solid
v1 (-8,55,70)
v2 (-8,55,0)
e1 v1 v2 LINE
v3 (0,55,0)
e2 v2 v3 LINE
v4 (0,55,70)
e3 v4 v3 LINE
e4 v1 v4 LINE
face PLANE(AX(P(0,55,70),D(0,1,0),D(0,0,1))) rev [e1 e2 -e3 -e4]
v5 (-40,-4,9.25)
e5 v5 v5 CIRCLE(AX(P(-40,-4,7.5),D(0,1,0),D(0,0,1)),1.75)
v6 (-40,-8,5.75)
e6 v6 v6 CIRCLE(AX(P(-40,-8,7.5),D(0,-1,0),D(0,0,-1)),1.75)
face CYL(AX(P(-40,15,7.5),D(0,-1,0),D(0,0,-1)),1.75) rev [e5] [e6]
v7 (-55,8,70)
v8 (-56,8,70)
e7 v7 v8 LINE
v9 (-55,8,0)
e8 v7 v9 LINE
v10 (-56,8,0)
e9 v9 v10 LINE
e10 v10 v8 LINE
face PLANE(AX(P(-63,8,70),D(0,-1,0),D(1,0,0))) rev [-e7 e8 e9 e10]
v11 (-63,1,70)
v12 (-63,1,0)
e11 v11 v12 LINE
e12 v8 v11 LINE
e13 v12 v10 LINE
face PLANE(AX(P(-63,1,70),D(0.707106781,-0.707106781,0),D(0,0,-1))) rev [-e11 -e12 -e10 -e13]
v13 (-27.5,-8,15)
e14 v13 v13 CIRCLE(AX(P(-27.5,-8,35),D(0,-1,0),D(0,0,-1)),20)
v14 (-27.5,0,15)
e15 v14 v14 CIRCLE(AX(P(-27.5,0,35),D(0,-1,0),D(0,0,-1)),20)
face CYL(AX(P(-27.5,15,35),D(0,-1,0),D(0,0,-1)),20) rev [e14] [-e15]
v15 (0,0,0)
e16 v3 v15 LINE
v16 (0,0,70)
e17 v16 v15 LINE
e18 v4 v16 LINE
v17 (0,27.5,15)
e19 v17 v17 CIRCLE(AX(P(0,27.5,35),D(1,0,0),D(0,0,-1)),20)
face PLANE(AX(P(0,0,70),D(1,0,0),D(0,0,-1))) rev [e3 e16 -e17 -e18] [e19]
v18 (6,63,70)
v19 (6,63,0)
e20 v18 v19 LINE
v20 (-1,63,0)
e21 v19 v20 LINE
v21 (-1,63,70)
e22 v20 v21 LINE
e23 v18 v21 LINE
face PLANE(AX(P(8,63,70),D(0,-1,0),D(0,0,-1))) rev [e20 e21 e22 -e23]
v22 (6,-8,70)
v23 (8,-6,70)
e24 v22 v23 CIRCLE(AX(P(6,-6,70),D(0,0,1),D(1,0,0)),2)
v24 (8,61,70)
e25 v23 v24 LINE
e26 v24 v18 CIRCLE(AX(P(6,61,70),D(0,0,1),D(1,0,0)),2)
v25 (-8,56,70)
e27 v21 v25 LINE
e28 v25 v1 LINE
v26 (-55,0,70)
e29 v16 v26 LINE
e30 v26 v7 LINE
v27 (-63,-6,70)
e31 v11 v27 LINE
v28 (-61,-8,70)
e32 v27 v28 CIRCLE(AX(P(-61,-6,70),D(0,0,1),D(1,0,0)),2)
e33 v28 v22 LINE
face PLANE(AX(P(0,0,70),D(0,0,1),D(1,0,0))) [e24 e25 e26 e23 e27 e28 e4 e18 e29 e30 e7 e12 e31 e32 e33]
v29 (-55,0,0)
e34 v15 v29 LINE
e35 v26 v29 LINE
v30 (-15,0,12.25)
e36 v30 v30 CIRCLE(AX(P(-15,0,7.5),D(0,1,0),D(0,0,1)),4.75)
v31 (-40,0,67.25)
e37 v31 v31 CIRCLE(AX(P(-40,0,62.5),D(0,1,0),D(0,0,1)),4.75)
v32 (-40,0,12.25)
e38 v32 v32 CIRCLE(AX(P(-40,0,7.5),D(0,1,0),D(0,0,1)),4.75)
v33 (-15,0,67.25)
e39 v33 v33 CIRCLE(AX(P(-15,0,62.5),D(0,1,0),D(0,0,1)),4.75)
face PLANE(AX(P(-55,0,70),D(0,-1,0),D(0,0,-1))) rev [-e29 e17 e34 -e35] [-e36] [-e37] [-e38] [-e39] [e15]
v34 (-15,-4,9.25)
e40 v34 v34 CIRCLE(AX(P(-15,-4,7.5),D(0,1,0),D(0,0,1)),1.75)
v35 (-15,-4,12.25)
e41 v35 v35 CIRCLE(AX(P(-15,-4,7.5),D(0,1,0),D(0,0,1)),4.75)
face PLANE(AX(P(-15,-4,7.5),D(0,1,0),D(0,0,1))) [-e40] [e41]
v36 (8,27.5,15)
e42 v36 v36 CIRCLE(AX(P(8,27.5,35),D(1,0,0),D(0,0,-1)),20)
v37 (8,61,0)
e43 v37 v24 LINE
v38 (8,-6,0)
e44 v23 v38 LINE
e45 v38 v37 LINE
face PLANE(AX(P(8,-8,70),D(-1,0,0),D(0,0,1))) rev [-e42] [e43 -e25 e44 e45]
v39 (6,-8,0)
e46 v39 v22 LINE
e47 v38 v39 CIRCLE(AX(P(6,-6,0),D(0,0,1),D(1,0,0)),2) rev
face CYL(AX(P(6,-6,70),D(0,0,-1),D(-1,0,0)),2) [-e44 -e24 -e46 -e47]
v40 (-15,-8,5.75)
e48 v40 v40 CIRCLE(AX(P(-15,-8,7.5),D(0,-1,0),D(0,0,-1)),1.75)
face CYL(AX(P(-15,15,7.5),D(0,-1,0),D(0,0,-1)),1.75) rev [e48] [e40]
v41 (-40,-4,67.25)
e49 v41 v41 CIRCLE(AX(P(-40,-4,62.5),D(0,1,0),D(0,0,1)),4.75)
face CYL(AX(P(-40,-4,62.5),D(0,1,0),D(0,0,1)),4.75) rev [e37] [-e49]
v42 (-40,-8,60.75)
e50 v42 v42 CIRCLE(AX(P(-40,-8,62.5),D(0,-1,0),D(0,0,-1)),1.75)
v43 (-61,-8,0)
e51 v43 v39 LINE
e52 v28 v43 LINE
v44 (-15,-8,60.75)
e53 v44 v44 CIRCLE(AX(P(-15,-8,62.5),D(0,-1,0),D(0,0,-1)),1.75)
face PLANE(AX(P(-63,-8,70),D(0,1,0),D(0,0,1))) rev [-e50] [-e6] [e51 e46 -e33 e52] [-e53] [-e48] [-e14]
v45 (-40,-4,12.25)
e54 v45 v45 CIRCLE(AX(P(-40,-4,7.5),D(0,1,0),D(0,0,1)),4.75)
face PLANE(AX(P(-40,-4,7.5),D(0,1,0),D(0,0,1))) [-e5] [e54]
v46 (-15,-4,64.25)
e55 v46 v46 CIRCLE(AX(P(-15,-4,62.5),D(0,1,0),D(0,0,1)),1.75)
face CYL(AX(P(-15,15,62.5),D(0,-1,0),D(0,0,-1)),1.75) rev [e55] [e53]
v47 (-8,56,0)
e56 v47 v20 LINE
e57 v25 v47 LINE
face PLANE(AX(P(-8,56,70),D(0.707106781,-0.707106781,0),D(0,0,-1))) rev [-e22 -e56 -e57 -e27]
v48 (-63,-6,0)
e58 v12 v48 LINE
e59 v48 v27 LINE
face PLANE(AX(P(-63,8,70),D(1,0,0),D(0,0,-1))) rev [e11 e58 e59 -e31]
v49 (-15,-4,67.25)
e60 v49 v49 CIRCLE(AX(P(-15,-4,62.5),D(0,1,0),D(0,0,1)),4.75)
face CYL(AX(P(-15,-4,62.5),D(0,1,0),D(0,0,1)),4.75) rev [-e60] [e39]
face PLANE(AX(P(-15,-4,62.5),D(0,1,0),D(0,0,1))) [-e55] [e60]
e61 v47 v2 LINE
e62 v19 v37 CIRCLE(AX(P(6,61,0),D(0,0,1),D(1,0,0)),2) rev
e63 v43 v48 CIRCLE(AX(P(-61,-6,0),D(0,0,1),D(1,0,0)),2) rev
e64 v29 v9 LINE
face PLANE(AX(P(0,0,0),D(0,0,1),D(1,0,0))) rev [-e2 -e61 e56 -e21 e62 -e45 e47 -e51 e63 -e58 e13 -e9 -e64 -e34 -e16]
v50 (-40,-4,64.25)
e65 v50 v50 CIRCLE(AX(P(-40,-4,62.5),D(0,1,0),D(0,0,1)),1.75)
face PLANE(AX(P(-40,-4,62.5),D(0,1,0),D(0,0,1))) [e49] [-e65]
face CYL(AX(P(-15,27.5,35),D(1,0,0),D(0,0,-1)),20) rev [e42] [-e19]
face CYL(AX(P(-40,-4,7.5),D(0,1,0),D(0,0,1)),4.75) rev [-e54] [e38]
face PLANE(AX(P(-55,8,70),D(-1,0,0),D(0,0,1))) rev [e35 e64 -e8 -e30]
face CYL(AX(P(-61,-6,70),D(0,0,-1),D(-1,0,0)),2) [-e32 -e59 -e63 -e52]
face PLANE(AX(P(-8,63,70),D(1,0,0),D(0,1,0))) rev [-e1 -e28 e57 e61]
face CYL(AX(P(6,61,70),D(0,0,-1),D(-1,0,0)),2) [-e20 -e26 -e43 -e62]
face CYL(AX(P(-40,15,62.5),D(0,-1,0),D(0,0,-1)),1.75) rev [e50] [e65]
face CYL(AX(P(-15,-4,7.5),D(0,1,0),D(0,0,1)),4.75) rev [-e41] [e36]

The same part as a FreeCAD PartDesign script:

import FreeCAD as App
import Part
import Sketcher

V = App.Vector
Q = App.Units.Quantity


def edges_at(feature, points):
    """Names of the edges that pass closest to the given points."""
    edges = feature.Shape.Edges
    near = lambda p: min(range(len(edges)), key=lambda i: edges[i].distToShape(Part.Vertex(*p))[0])
    return sorted({f"Edge{near(p) + 1}" for p in points})


def add_polygon(sketch, points):
    """Adds a closed chain of lines whose ends are joined by coincident constraints."""
    first, n = sketch.GeometryCount, len(points)
    for a, b in zip(points, points[1:] + points[:1]):
        sketch.addGeometry(Part.LineSegment(App.Vector(*a, 0), App.Vector(*b, 0)), False)
    for i in range(n):
        sketch.addConstraint(Sketcher.Constraint("Coincident", first + i, 2, first + (i + 1) % n, 1))

doc = App.newDocument("Part")
params = doc.addObject("Spreadsheet::Sheet", "Params")
for row, (alias, value) in enumerate([
    ("sketch1_width", "55 mm"),
    ("sketch1_width2", "8 mm"),
    ("sketch1_width3", "71 mm"),
    ("pad1_length", "70 mm"),
    ("chamfer_size", "7 mm"),
    ("fillet_radius", "2 mm"),
    ("sketch2_diameter", "40 mm"),
    ("sketch2_diameter2", "3.5 mm"),
    ("pocket1_length", "23 mm"),
    ("sketch3_diameter", "9.5 mm"),
    ("sketch3_diameter2", "3.5 mm"),
    ("pocket2_length", "4 mm"),
    ("sketch4_diameter", "40 mm"),
    ("pocket3_length", "23 mm"),
], start=1):
    params.set(f"A{row}", alias)
    params.set(f"B{row}", "=" + value)
    params.setAlias(f"B{row}", alias)

body = doc.addObject("PartDesign::Body", "Body")

sketch1 = doc.addObject("Sketcher::SketchObject", "Sketch")
body.addObject(sketch1)
sketch1.AttachmentSupport = (doc.XY_Plane, [""])
sketch1.MapMode = "FlatFace"
add_polygon(sketch1, [(0, 0), (-55, 0), (-55, 8), (-63, 8), (-63, -8), (8, -8), (8, 63), (-8, 63), (-8, 55), (0, 55)])
sketch1.addConstraint([
    Sketcher.Constraint("Horizontal", 0),
    Sketcher.Constraint("Vertical", 1),
    Sketcher.Constraint("Horizontal", 2),
    Sketcher.Constraint("Vertical", 3),
    Sketcher.Constraint("Horizontal", 4),
    Sketcher.Constraint("Vertical", 5),
    Sketcher.Constraint("Horizontal", 6),
    Sketcher.Constraint("Vertical", 7),
    Sketcher.Constraint("Horizontal", 8),
    Sketcher.Constraint("Vertical", 9),
    Sketcher.Constraint("Coincident", 9, 2, -1, 1),
    Sketcher.Constraint("Equal", 2, 8),
    Sketcher.Constraint("Equal", 8, 1),
    Sketcher.Constraint("Equal", 6, 3),
    Sketcher.Constraint("Equal", 4, 5),
    Sketcher.Constraint("Equal", 1, 7),
    Sketcher.Constraint("DistanceX", 0, 2, 0, 1, Q("55 mm")),
    Sketcher.Constraint("DistanceX", 2, 2, 2, 1, Q("8 mm")),
    Sketcher.Constraint("DistanceX", 4, 1, 4, 2, Q("71 mm")),
])
sketch1.setExpression("Constraints[26]", "Params.sketch1_width")
sketch1.setExpression("Constraints[27]", "Params.sketch1_width2")
sketch1.setExpression("Constraints[28]", "Params.sketch1_width3")
pad1 = doc.addObject("PartDesign::Pad", "Pad")
body.addObject(pad1)
pad1.Profile = sketch1
pad1.setExpression("Length", "Params.pad1_length")
doc.recompute()

chamfer = doc.addObject("PartDesign::Chamfer", "Chamfer")
body.addObject(chamfer)
chamfer.Base = (pad1, edges_at(pad1, [(-8, 63, 35), (-63, 8, 35)]))
chamfer.setExpression("Size", "Params.chamfer_size")
doc.recompute()

fillet = doc.addObject("PartDesign::Fillet", "Fillet")
body.addObject(fillet)
fillet.Base = (chamfer, edges_at(chamfer, [(8, 63, 35), (8, -8, 35), (-63, -8, 35)]))
fillet.setExpression("Radius", "Params.fillet_radius")

sketch2 = doc.addObject("Sketcher::SketchObject", "Sketch001")
body.addObject(sketch2)
sketch2.AttachmentSupport = (doc.XZ_Plane, [""])
sketch2.MapMode = "FlatFace"
sketch2.AttachmentOffset = App.Placement(V(0, 0, 8), App.Rotation())
sketch2.addGeometry([
    Part.Circle(V(-40, 62.5, 0), V(0, 0, 1), 1.8),
    Part.Circle(V(-15, 62.5, 0), V(0, 0, 1), 1.8),
    Part.Circle(V(-15, 7.5, 0), V(0, 0, 1), 1.8),
    Part.Circle(V(-40, 7.5, 0), V(0, 0, 1), 1.8),
    Part.Circle(V(-27.5, 35, 0), V(0, 0, 1), 20),
], False)
sketch2.addConstraint([
    Sketcher.Constraint("Equal", 0, 1),
    Sketcher.Constraint("Equal", 1, 2),
    Sketcher.Constraint("Equal", 2, 3),
    Sketcher.Constraint("Horizontal", 0, 3, 1, 3),
    Sketcher.Constraint("Horizontal", 2, 3, 3, 3),
    Sketcher.Constraint("Vertical", 1, 3, 2, 3),
    Sketcher.Constraint("Vertical", 0, 3, 3, 3),
    Sketcher.Constraint("Diameter", 4, Q("40 mm")),
    Sketcher.Constraint("Diameter", 0, Q("3.5 mm")),
    Sketcher.Constraint("DistanceX", 0, 3, -1, 1, Q("40 mm")),
    Sketcher.Constraint("DistanceX", 1, 3, -1, 1, Q("15 mm")),
    Sketcher.Constraint("DistanceY", -1, 1, 4, 3, Q("35 mm")),
    Sketcher.Constraint("DistanceY", 2, 3, 1, 3, Q("55 mm")),
    Sketcher.Constraint("DistanceY", -1, 1, 0, 3, Q("62.5 mm")),
    Sketcher.Constraint("DistanceX", 4, 3, -1, 1, Q("27.5 mm")),
])
sketch2.setExpression("Constraints[7]", "Params.sketch2_diameter")
sketch2.setExpression("Constraints[8]", "Params.sketch2_diameter2")
pocket1 = doc.addObject("PartDesign::Pocket", "Pocket")
body.addObject(pocket1)
pocket1.Profile = sketch2
pocket1.setExpression("Length", "Params.pocket1_length")

sketch3 = doc.addObject("Sketcher::SketchObject", "Sketch002")
body.addObject(sketch3)
sketch3.AttachmentSupport = (doc.XZ_Plane, [""])
sketch3.MapMode = "FlatFace"
sketch3.AttachmentOffset = App.Placement(V(0, 0, 4), App.Rotation())
sketch3.addGeometry([
    Part.Circle(V(-40, 62.5, 0), V(0, 0, 1), 4.8),
    Part.Circle(V(-40, 62.5, 0), V(0, 0, 1), 1.8),
    Part.Circle(V(-15, 62.5, 0), V(0, 0, 1), 4.8),
    Part.Circle(V(-15, 62.5, 0), V(0, 0, 1), 1.8),
    Part.Circle(V(-15, 7.5, 0), V(0, 0, 1), 4.8),
    Part.Circle(V(-15, 7.5, 0), V(0, 0, 1), 1.8),
    Part.Circle(V(-40, 7.5, 0), V(0, 0, 1), 4.8),
    Part.Circle(V(-40, 7.5, 0), V(0, 0, 1), 1.8),
], False)
sketch3.addConstraint([
    Sketcher.Constraint("Coincident", 1, 3, 0, 3),
    Sketcher.Constraint("Coincident", 3, 3, 2, 3),
    Sketcher.Constraint("Coincident", 5, 3, 4, 3),
    Sketcher.Constraint("Coincident", 7, 3, 6, 3),
    Sketcher.Constraint("Equal", 0, 2),
    Sketcher.Constraint("Equal", 1, 3),
    Sketcher.Constraint("Equal", 2, 4),
    Sketcher.Constraint("Equal", 3, 5),
    Sketcher.Constraint("Equal", 4, 6),
    Sketcher.Constraint("Equal", 5, 7),
    Sketcher.Constraint("Horizontal", 1, 3, 2, 3),
    Sketcher.Constraint("Horizontal", 5, 3, 6, 3),
    Sketcher.Constraint("Vertical", 3, 3, 4, 3),
    Sketcher.Constraint("Vertical", 1, 3, 6, 3),
    Sketcher.Constraint("Diameter", 0, Q("9.5 mm")),
    Sketcher.Constraint("Diameter", 1, Q("3.5 mm")),
    Sketcher.Constraint("DistanceX", 0, 3, -1, 1, Q("40 mm")),
    Sketcher.Constraint("DistanceX", 2, 3, -1, 1, Q("15 mm")),
    Sketcher.Constraint("DistanceY", 4, 3, 2, 3, Q("55 mm")),
    Sketcher.Constraint("DistanceY", -1, 1, 0, 3, Q("62.5 mm")),
])
sketch3.setExpression("Constraints[14]", "Params.sketch3_diameter")
sketch3.setExpression("Constraints[15]", "Params.sketch3_diameter2")
pocket2 = doc.addObject("PartDesign::Pocket", "Pocket001")
body.addObject(pocket2)
pocket2.Profile = sketch3
pocket2.setExpression("Length", "Params.pocket2_length")

sketch4 = doc.addObject("Sketcher::SketchObject", "Sketch003")
body.addObject(sketch4)
sketch4.AttachmentSupport = (doc.YZ_Plane, [""])
sketch4.MapMode = "FlatFace"
sketch4.AttachmentOffset = App.Placement(V(0, 0, 8), App.Rotation())
sketch4.addGeometry(Part.Circle(V(28, 35, 0), V(0, 0, 1), 20), False)
sketch4.addConstraint([
    Sketcher.Constraint("Diameter", 0, Q("40 mm")),
    Sketcher.Constraint("DistanceY", -1, 1, 0, 3, Q("35 mm")),
    Sketcher.Constraint("DistanceX", -1, 1, 0, 3, Q("27.5 mm")),
])
sketch4.setExpression("Constraints[0]", "Params.sketch4_diameter")
pocket3 = doc.addObject("PartDesign::Pocket", "Pocket002")
body.addObject(pocket3)
pocket3.Profile = sketch4
pocket3.setExpression("Length", "Params.pocket3_length")

doc.recompute()
